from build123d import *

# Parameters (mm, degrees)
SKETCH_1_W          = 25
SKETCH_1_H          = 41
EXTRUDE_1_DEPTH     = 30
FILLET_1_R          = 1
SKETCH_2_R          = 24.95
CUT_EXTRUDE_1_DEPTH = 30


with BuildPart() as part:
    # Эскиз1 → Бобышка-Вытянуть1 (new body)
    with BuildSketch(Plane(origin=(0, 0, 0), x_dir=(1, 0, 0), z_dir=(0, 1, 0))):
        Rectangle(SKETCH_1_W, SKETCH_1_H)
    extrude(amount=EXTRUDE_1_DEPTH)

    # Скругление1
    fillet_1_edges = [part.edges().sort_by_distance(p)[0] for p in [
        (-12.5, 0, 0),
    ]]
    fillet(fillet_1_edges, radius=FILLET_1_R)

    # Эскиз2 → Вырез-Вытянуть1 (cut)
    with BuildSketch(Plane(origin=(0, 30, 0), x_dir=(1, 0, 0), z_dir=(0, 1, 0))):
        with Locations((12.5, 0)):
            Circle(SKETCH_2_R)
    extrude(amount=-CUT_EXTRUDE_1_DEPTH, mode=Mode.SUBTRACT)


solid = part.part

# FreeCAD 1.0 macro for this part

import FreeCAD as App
import Part
import Sketcher

V = App.Vector
Q = App.Units.Quantity


def edges_at(feature, points):
    """Names of the edges that pass closest to the given points."""
    edges = feature.Shape.Edges
    near = lambda p: min(range(len(edges)), key=lambda i: edges[i].distToShape(Part.Vertex(*p))[0])
    return sorted({f"Edge{near(p) + 1}" for p in points})


def add_polygon(sketch, points):
    """Adds a closed chain of lines whose ends are joined by coincident constraints."""
    first, n = sketch.GeometryCount, len(points)
    for a, b in zip(points, points[1:] + points[:1]):
        sketch.addGeometry(Part.LineSegment(App.Vector(*a, 0), App.Vector(*b, 0)), False)
    for i in range(n):
        sketch.addConstraint(Sketcher.Constraint("Coincident", first + i, 2, first + (i + 1) % n, 1))

doc = App.newDocument("Part")
body = doc.addObject("PartDesign::Body", "Body")

sketch1 = body.newObject("Sketcher::SketchObject", "Sketch")
sketch1.AttachmentSupport = (doc.getObject("XZ_Plane"), [""])
sketch1.MapMode = "FlatFace"
add_polygon(sketch1, [(-12.5, -20.5), (-12.5, 20.5), (12.5, 20.5), (12.5, -20.5)])
sketch1.addConstraint(Sketcher.Constraint("Vertical", 0))
sketch1.addConstraint(Sketcher.Constraint("Horizontal", 1))
sketch1.addConstraint(Sketcher.Constraint("Vertical", 2))
sketch1.addConstraint(Sketcher.Constraint("Horizontal", 3))
sketch1.addConstraint(Sketcher.Constraint("Symmetric", 0, 2, 2, 2, -1, 1))
sketch1.addConstraint(Sketcher.Constraint("DistanceX", 1, 1, 1, 2, Q("25 mm")))
sketch1.addConstraint(Sketcher.Constraint("DistanceY", 0, 1, 0, 2, Q("41 mm")))
pad1 = body.newObject("PartDesign::Pad", "Pad")
pad1.Profile = sketch1
pad1.Length = 30
pad1.Reversed = True
doc.recompute()

fillet = body.newObject("PartDesign::Fillet", "Fillet")
fillet.Base = (pad1, edges_at(pad1, [(-12.5, 0, 0)]))
fillet.Radius = 1

sketch2 = body.newObject("Sketcher::SketchObject", "Sketch001")
sketch2.AttachmentSupport = (doc.getObject("XZ_Plane"), [""])
sketch2.MapMode = "FlatFace"
sketch2.AttachmentOffset = App.Placement(V(0, 0, -30), App.Rotation())
sketch2.addGeometry(Part.Circle(V(12.5, 0, 0), V(0, 0, 1), 24.95), False)
sketch2.addConstraint(Sketcher.Constraint("PointOnObject", 0, 3, -1))
sketch2.addConstraint(Sketcher.Constraint("Diameter", 0, Q("49.9 mm")))
sketch2.addConstraint(Sketcher.Constraint("DistanceX", -1, 1, 0, 3, Q("12.5 mm")))
pocket1 = body.newObject("PartDesign::Pocket", "Pocket")
pocket1.Profile = sketch2
pocket1.Length = 30
pocket1.Reversed = True

doc.recompute()
